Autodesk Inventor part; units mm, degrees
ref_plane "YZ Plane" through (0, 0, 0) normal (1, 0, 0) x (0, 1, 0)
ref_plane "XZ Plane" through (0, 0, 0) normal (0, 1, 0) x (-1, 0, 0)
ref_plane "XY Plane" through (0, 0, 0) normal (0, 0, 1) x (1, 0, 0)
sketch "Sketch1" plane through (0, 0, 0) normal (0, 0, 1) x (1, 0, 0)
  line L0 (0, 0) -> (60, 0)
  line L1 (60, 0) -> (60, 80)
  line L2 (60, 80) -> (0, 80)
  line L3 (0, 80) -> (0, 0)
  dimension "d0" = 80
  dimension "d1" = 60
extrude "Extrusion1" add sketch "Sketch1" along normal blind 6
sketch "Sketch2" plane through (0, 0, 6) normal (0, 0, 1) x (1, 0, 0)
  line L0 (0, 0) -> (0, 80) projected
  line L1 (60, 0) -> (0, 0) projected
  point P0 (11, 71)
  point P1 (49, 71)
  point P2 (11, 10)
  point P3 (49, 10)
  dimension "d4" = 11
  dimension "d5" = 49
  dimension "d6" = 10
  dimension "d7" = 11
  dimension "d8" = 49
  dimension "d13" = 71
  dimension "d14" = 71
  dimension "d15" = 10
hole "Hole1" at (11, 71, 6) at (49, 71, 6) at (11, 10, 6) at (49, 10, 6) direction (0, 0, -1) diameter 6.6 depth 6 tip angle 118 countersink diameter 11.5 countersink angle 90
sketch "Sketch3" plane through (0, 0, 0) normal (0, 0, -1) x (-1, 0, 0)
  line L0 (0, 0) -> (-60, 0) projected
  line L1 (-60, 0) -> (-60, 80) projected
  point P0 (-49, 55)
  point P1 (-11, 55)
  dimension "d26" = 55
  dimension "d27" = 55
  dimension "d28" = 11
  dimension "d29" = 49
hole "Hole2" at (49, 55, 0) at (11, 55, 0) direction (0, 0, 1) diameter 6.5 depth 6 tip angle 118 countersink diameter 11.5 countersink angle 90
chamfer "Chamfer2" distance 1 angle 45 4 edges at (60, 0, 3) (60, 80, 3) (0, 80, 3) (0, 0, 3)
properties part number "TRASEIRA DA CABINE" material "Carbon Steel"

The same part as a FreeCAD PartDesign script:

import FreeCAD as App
import Part
import Sketcher

V = App.Vector
Q = App.Units.Quantity


def edges_at(feature, points):
    """Names of the edges that pass closest to the given points."""
    edges = feature.Shape.Edges
    near = lambda p: min(range(len(edges)), key=lambda i: edges[i].distToShape(Part.Vertex(*p))[0])
    return sorted({f"Edge{near(p) + 1}" for p in points})

doc = App.newDocument("Part")
body = doc.addObject("PartDesign::Body", "Body")

# Sketch on XY plane
sketch1 = doc.addObject("Sketcher::SketchObject", "Sketch")
body.addObject(sketch1)
sketch1.AttachmentSupport = (doc.XY_Plane, [""])
sketch1.MapMode = "FlatFace"
sketch1.addGeometry([
    Part.LineSegment(V(0, 80, 0), V(0, 0, 0)),
    Part.LineSegment(V(0, 0, 0), V(60, 0, 0)),
    Part.LineSegment(V(60, 0, 0), V(60, 80, 0)),
    Part.LineSegment(V(60, 80, 0), V(0, 80, 0)),
], False)
sketch1.addConstraint([
    Sketcher.Constraint("Coincident", 0, 2, 1, 1),
    Sketcher.Constraint("Coincident", 1, 2, 2, 1),
    Sketcher.Constraint("Coincident", 2, 2, 3, 1),
    Sketcher.Constraint("Coincident", 3, 2, 0, 1),
    Sketcher.Constraint("Vertical", 0),
    Sketcher.Constraint("Horizontal", 1),
    Sketcher.Constraint("Vertical", 2),
    Sketcher.Constraint("Horizontal", 3),
    Sketcher.Constraint("Coincident", 0, 2, -1, 1),
    Sketcher.Constraint("DistanceX", 1, 1, 1, 2, Q("60 mm")),
    Sketcher.Constraint("DistanceY", 0, 2, 0, 1, Q("80 mm")),
])
pad1 = doc.addObject("PartDesign::Pad", "Pad")
body.addObject(pad1)
pad1.Profile = sketch1
pad1.Length = 6

# Sketch on XY plane
sketch2 = doc.addObject("Sketcher::SketchObject", "Sketch001")
body.addObject(sketch2)
sketch2.AttachmentSupport = (doc.XY_Plane, [""])
sketch2.MapMode = "FlatFace"
sketch2.AttachmentOffset = App.Placement(V(0, 0, 6), App.Rotation())
sketch2.addGeometry([
    Part.Circle(V(11, 71, 0), V(0, 0, 1), 3.3),
    Part.Circle(V(49, 71, 0), V(0, 0, 1), 3.3),
    Part.Circle(V(11, 10, 0), V(0, 0, 1), 3.3),
    Part.Circle(V(49, 10, 0), V(0, 0, 1), 3.3),
], False)
sketch2.addConstraint([
    Sketcher.Constraint("Equal", 0, 1),
    Sketcher.Constraint("Equal", 1, 2),
    Sketcher.Constraint("Equal", 2, 3),
    Sketcher.Constraint("Horizontal", 0, 3, 1, 3),
    Sketcher.Constraint("Horizontal", 2, 3, 3, 3),
    Sketcher.Constraint("Vertical", 0, 3, 2, 3),
    Sketcher.Constraint("Vertical", 1, 3, 3, 3),
    Sketcher.Constraint("Diameter", 0, Q("6.6 mm")),
    Sketcher.Constraint("DistanceX", -1, 1, 0, 3, Q("11 mm")),
    Sketcher.Constraint("DistanceY", -1, 1, 0, 3, Q("71 mm")),
    Sketcher.Constraint("DistanceX", -1, 1, 1, 3, Q("49 mm")),
    Sketcher.Constraint("DistanceY", -1, 1, 2, 3, Q("10 mm")),
])
doc.recompute()
hole = doc.addObject("PartDesign::Hole", "Hole")
body.addObject(hole)
hole.Profile = sketch2
hole.ThreadType = "None"
hole.Diameter = 6.6
hole.DepthType = "Dimension"
hole.Depth = 6
hole.DrillPoint = "Angled"
hole.DrillPointAngle = 118
hole.HoleCutType = "Countersink"
hole.HoleCutDiameter = 11.5
hole.HoleCutCountersinkAngle = 90

# Sketch on XY plane
sketch3 = doc.addObject("Sketcher::SketchObject", "Sketch002")
body.addObject(sketch3)
sketch3.AttachmentSupport = (doc.XY_Plane, [""])
sketch3.MapMode = "FlatFace"
sketch3.addGeometry([
    Part.Circle(V(49, 55, 0), V(0, 0, 1), 3.2),
    Part.Circle(V(11, 55, 0), V(0, 0, 1), 3.2),
], False)
sketch3.addConstraint([
    Sketcher.Constraint("Equal", 0, 1),
    Sketcher.Constraint("Horizontal", 0, 3, 1, 3),
    Sketcher.Constraint("Diameter", 0, Q("6.5 mm")),
    Sketcher.Constraint("DistanceX", -1, 1, 0, 3, Q("49 mm")),
    Sketcher.Constraint("DistanceY", -1, 1, 0, 3, Q("55 mm")),
    Sketcher.Constraint("DistanceX", -1, 1, 1, 3, Q("11 mm")),
])
doc.recompute()
hole2 = doc.addObject("PartDesign::Hole", "Hole001")
body.addObject(hole2)
hole2.Profile = sketch3
hole2.ThreadType = "None"
hole2.Diameter = 6.5
hole2.DepthType = "Dimension"
hole2.Depth = 6
hole2.DrillPoint = "Angled"
hole2.DrillPointAngle = 118
hole2.HoleCutType = "Countersink"
hole2.HoleCutDiameter = 11.5
hole2.HoleCutCountersinkAngle = 90
hole2.Reversed = True
doc.recompute()

chamfer = doc.addObject("PartDesign::Chamfer", "Chamfer")
body.addObject(chamfer)
chamfer.Base = (hole2, edges_at(hole2, [
    (60, 0, 3),
    (60, 80, 3),
    (0, 80, 3),
    (0, 0, 3),
]))
chamfer.Size = 1

doc.recompute()
